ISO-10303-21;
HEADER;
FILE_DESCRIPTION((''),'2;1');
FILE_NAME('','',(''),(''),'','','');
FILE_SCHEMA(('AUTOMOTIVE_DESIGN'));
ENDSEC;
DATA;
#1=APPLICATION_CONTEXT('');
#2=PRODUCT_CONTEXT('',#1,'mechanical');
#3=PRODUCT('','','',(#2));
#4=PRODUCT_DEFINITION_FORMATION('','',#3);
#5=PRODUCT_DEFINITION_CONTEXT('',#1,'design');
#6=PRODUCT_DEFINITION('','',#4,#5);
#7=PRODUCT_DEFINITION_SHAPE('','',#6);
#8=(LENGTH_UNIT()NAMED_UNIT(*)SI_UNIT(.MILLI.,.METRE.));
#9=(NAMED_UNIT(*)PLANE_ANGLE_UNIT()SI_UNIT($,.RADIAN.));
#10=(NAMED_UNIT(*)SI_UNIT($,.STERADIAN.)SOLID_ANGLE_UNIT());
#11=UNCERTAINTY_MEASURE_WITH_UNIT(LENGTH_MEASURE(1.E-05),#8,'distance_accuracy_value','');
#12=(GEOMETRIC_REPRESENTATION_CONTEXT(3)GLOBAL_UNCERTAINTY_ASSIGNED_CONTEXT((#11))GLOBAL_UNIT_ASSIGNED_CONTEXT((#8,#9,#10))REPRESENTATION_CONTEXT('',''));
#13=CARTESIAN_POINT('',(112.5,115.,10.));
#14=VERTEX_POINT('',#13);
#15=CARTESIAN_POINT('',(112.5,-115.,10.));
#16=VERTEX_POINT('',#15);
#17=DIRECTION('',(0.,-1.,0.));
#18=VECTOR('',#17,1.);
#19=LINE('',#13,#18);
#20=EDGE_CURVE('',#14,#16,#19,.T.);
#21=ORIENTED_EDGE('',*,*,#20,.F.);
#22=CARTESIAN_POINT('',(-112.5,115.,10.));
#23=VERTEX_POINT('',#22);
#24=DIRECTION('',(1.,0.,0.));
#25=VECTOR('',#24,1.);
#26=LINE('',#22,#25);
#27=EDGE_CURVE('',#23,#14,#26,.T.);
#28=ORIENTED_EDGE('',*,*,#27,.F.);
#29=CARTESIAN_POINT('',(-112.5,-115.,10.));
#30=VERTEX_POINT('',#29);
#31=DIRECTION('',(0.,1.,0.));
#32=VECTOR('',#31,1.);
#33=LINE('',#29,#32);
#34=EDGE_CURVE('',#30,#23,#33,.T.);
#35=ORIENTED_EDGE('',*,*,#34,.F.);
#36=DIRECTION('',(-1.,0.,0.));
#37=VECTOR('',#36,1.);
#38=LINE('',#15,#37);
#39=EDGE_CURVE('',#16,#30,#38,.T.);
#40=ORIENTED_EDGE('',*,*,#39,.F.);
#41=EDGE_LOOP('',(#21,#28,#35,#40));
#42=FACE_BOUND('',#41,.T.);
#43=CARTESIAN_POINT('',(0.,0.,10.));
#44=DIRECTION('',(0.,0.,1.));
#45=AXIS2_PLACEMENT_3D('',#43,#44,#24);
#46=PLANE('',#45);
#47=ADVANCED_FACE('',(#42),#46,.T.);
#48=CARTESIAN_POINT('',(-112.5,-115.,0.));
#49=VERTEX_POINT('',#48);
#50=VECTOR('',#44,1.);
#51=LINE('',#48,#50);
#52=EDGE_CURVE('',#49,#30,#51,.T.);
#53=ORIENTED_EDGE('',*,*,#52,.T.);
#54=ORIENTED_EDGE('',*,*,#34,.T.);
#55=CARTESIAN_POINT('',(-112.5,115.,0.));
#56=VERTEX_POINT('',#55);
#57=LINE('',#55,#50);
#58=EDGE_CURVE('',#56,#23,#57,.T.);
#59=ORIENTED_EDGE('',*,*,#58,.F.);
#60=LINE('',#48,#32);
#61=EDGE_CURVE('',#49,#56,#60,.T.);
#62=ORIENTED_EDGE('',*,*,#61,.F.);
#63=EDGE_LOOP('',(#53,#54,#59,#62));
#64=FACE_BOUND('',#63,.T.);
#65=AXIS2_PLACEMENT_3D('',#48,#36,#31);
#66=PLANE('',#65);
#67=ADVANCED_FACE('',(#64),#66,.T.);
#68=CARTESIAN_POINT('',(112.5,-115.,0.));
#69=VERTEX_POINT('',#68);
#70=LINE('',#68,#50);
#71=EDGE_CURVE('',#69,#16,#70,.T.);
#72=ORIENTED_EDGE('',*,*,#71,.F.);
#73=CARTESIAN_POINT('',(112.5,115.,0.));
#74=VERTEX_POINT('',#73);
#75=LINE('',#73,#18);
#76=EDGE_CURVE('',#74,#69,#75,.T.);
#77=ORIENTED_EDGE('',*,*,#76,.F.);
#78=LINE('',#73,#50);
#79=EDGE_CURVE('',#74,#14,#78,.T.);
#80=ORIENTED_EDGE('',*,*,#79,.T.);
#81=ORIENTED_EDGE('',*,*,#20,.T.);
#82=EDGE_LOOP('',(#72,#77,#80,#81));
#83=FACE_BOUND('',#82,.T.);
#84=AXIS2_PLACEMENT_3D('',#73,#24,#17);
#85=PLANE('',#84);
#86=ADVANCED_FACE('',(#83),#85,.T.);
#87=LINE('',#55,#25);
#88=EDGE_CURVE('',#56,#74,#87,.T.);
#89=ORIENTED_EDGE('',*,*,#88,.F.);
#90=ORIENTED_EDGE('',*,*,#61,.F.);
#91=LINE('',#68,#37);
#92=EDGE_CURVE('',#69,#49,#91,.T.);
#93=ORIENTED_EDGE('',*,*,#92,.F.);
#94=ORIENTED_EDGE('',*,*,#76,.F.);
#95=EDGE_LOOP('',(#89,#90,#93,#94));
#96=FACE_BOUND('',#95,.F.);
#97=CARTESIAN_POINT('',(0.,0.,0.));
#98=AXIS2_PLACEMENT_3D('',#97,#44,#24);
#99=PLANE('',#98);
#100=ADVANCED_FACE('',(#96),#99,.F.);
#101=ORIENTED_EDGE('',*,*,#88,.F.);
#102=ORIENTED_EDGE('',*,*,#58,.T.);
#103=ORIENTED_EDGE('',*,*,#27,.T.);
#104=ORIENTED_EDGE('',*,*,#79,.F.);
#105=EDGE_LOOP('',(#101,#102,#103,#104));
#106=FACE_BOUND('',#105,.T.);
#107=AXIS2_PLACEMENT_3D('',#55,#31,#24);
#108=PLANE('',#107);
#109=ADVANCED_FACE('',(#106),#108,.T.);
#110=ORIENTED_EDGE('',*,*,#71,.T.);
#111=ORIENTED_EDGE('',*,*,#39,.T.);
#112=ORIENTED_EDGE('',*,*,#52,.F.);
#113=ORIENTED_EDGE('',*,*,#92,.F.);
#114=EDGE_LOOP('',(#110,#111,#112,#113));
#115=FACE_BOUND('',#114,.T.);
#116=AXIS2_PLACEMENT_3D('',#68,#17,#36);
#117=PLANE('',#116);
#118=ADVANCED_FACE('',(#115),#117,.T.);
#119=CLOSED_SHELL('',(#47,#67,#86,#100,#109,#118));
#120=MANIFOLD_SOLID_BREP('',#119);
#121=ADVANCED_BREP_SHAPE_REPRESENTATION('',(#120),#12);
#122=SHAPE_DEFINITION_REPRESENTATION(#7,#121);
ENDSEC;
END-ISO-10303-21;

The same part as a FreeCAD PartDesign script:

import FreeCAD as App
import Part
import Sketcher

doc = App.newDocument("Part")
body = doc.addObject("PartDesign::Body", "Body")

sketch1 = body.newObject("Sketcher::SketchObject", "Sketch")
sketch1.AttachmentSupport = (doc.getObject("XY_Plane"), [""])
sketch1.MapMode = "FlatFace"
sketch1.addGeometry([
    Part.LineSegment(App.Vector(112, 115, 0), App.Vector(-112, 115, 0)),
    Part.LineSegment(App.Vector(-112, 115, 0), App.Vector(-112, -115, 0)),
    Part.LineSegment(App.Vector(-112, -115, 0), App.Vector(112, -115, 0)),
    Part.LineSegment(App.Vector(112, -115, 0), App.Vector(112, 115, 0)),
], False)
sketch1.addConstraint([
    Sketcher.Constraint("Coincident", 0, 2, 1, 1),
    Sketcher.Constraint("Coincident", 1, 2, 2, 1),
    Sketcher.Constraint("Coincident", 2, 2, 3, 1),
    Sketcher.Constraint("Coincident", 3, 2, 0, 1),
    Sketcher.Constraint("Horizontal", 0),
    Sketcher.Constraint("Vertical", 1),
    Sketcher.Constraint("Horizontal", 2),
    Sketcher.Constraint("Vertical", 3),
    Sketcher.Constraint("Symmetric", 0, 2, 2, 2, -1, 1),
    Sketcher.Constraint("DistanceX", 0, 2, 0, 1, 225.0),
    Sketcher.Constraint("DistanceY", 1, 2, 1, 1, 230.0),
])
pad1 = body.newObject("PartDesign::Pad", "Pad")
pad1.Profile = sketch1
pad1.Length = 10

doc.recompute()
